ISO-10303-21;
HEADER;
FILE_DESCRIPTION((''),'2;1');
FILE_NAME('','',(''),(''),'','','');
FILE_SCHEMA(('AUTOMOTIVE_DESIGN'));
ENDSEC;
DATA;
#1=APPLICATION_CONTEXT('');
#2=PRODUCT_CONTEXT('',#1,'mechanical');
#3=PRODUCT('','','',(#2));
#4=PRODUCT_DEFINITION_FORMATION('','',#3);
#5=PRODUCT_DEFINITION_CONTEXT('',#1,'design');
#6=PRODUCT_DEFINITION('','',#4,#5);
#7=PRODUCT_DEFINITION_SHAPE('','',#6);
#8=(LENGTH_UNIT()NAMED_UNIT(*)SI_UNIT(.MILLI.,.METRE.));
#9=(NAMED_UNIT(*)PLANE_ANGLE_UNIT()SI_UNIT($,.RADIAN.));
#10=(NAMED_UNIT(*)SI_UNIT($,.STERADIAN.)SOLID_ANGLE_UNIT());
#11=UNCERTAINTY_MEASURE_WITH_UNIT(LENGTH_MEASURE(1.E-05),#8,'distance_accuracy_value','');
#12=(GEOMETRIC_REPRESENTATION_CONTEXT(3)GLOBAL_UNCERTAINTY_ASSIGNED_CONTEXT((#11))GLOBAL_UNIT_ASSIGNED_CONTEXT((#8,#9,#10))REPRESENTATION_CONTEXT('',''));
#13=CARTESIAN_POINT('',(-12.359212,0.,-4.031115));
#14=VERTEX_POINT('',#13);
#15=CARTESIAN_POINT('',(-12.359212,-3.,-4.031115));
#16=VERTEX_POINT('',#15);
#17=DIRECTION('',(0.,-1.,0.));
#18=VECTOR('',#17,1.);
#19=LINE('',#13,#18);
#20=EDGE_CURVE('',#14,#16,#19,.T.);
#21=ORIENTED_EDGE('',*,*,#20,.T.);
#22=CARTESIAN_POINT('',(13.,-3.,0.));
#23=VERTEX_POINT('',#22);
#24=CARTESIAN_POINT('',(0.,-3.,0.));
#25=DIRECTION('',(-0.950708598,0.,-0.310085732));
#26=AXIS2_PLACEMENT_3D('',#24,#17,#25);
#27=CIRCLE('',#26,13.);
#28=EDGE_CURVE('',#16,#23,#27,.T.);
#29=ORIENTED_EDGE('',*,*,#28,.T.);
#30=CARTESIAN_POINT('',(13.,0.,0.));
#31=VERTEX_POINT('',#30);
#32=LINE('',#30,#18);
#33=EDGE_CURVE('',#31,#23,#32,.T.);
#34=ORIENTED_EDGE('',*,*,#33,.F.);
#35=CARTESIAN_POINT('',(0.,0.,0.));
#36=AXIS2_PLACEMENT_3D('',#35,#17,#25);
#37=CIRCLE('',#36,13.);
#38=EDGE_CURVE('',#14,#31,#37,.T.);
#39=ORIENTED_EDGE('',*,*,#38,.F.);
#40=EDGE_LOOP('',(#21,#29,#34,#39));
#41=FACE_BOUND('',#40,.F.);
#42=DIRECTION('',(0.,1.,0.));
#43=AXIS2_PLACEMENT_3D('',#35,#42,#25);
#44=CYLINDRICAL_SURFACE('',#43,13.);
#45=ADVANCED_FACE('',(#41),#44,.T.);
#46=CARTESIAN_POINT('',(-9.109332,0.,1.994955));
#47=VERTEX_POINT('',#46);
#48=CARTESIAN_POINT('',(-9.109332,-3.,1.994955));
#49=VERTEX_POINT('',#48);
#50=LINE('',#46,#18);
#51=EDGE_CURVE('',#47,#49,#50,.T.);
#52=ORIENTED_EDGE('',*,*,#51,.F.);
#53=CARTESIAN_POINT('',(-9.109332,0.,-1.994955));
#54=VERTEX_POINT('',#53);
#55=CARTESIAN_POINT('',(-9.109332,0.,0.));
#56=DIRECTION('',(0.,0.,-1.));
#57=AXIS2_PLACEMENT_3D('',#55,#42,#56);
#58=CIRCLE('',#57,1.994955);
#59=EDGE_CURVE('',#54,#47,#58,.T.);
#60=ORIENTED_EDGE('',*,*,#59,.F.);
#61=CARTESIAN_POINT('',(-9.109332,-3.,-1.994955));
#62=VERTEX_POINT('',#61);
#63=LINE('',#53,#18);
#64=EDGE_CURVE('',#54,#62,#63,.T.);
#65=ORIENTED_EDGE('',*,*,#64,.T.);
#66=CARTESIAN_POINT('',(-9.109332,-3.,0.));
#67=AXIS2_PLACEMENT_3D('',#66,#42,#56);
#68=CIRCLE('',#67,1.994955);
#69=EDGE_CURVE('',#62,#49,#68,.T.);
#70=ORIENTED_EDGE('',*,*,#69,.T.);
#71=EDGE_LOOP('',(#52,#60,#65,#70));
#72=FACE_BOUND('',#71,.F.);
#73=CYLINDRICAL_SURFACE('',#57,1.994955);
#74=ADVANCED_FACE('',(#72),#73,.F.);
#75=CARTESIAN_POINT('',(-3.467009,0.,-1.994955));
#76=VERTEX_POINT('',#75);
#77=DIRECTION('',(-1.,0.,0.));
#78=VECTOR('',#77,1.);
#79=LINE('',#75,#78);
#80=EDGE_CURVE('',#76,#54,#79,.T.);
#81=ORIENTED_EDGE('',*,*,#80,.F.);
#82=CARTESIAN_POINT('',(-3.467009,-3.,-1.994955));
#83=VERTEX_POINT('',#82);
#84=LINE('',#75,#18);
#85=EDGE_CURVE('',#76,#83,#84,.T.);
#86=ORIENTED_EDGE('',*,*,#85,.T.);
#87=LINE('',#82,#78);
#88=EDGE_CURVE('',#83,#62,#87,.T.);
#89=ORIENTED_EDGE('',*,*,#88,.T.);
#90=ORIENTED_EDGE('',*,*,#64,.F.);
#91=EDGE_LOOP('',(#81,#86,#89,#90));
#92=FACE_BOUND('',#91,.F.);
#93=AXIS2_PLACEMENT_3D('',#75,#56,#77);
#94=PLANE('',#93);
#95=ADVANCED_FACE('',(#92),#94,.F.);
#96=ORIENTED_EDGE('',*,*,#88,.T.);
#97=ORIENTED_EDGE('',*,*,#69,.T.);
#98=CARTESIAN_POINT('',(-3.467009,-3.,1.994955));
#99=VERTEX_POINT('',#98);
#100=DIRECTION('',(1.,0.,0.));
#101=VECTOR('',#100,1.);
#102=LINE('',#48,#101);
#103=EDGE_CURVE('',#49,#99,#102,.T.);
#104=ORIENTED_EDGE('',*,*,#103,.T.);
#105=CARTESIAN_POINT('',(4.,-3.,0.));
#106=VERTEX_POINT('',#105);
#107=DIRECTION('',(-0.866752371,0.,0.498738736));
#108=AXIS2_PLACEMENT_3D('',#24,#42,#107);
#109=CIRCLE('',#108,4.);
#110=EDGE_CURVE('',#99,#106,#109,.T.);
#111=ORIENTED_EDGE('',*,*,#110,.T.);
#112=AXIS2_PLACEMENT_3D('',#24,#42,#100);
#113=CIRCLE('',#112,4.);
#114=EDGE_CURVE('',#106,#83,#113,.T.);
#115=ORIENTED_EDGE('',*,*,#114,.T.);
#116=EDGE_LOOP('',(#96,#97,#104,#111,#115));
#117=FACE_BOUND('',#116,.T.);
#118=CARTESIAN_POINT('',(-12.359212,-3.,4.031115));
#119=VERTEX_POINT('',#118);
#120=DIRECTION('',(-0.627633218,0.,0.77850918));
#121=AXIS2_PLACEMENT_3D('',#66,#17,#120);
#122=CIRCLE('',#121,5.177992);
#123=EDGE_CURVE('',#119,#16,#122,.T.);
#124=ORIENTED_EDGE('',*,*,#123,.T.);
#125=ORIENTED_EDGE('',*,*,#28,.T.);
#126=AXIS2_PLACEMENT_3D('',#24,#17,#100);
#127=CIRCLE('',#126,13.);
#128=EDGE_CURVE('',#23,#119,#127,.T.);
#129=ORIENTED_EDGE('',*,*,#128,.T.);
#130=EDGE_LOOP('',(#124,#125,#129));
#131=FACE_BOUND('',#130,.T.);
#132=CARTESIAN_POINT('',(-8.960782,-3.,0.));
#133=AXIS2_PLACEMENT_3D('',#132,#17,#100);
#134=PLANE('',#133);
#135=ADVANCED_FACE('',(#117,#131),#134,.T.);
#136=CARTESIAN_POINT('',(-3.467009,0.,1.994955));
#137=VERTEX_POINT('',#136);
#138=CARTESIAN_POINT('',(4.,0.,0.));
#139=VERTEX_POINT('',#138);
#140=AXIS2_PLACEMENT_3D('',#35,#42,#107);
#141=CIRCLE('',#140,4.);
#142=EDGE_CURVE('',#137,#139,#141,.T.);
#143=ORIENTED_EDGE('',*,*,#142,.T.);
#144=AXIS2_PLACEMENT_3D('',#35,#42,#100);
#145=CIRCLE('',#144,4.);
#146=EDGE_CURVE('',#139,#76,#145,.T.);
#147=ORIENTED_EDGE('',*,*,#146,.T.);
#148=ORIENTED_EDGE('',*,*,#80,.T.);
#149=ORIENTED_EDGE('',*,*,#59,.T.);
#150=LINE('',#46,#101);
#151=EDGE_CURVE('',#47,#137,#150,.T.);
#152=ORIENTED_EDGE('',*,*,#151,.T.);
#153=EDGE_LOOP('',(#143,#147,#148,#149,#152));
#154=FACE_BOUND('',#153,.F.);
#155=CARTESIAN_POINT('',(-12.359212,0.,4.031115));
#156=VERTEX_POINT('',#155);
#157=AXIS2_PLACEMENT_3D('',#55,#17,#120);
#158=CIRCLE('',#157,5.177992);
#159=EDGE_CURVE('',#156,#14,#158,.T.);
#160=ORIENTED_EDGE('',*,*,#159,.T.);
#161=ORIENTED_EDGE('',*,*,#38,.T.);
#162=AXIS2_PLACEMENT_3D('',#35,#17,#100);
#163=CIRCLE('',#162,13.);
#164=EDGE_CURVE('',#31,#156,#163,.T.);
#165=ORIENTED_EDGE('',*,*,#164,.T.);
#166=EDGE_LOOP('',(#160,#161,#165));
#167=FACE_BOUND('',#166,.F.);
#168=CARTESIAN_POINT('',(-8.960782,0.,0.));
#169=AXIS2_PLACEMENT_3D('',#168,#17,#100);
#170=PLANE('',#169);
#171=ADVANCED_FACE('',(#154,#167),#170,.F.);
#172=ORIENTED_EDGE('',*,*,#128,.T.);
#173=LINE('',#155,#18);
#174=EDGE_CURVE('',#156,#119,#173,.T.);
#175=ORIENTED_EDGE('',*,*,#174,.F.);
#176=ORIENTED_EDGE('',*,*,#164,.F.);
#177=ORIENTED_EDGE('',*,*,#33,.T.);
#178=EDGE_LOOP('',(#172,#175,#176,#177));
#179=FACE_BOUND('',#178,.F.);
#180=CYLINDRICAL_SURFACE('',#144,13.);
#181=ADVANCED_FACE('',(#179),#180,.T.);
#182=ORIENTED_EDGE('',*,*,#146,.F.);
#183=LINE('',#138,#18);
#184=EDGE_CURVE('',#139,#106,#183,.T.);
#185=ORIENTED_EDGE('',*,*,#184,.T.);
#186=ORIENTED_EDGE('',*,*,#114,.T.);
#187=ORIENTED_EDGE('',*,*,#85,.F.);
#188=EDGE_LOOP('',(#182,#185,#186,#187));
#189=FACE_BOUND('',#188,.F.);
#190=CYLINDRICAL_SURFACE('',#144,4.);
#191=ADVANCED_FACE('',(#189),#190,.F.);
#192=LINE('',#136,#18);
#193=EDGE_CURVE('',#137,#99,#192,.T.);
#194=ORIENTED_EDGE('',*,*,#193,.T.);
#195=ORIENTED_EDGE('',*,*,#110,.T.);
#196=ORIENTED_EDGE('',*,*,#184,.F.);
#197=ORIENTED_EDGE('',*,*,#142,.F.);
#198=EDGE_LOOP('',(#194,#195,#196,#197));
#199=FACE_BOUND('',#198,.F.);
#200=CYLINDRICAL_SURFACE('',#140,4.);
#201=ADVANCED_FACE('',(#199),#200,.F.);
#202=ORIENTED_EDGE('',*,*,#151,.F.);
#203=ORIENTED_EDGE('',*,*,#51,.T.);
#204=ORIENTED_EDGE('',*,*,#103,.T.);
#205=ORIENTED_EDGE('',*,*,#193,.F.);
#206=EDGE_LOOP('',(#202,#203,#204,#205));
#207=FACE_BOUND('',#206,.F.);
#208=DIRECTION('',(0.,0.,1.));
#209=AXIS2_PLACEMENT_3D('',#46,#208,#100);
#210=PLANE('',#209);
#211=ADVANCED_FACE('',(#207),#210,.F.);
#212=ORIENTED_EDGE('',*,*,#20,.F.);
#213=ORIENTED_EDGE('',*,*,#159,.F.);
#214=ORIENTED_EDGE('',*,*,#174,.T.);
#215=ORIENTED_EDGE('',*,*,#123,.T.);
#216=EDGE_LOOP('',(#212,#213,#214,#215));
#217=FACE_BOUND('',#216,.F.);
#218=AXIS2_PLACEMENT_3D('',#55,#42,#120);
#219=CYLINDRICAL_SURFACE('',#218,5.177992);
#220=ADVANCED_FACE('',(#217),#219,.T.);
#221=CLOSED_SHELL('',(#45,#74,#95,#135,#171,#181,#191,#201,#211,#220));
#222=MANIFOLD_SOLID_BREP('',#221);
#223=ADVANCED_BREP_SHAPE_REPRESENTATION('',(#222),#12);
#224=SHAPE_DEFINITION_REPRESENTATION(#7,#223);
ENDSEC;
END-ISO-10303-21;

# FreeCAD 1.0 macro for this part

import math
import FreeCAD as App
import Part
import Sketcher
from FreeCAD import Vector

doc = App.newDocument("Part")
body = doc.addObject("PartDesign::Body", "Body")

sketch1 = body.newObject("Sketcher::SketchObject", "Sketch")
sketch1.AttachmentSupport = (doc.getObject("XZ_Plane"), [""])
sketch1.MapMode = "FlatFace"
sketch1.addGeometry([
    Part.ArcOfCircle(Part.Circle(Vector(0, 0, 0), Vector(0, 0, 1), 13), math.radians(-162), math.radians(0)),
    Part.ArcOfCircle(Part.Circle(Vector(0, 0, 0), Vector(0, 0, 1), 13), math.radians(0), math.radians(162)),
    Part.ArcOfCircle(Part.Circle(Vector(-9.1, 0, 0), Vector(0, 0, 1), 5.2), math.radians(129), math.radians(231)),
    Part.LineSegment(Vector(-9.1, 2, 0), Vector(-3.5, 2, 0)),
    Part.ArcOfCircle(Part.Circle(Vector(0, 0, 0), Vector(0, 0, 1), 4), math.radians(0), math.radians(150)),
    Part.ArcOfCircle(Part.Circle(Vector(0, 0, 0), Vector(0, 0, 1), 4), math.radians(-150), math.radians(0)),
    Part.LineSegment(Vector(-3.5, -2, 0), Vector(-9.1, -2, 0)),
    Part.ArcOfCircle(Part.Circle(Vector(-9.1, 0, 0), Vector(0, 0, 1), 2), math.radians(90), math.radians(270)),
], False)
sketch1.addConstraint([
    Sketcher.Constraint("Tangent", 0, 2, 1, 1),
    Sketcher.Constraint("Coincident", 1, 2, 2, 1),
    Sketcher.Constraint("Coincident", 2, 2, 0, 1),
    Sketcher.Constraint("Coincident", 3, 2, 4, 2),
    Sketcher.Constraint("Tangent", 4, 1, 5, 2),
    Sketcher.Constraint("Coincident", 5, 1, 6, 1),
    Sketcher.Constraint("Tangent", 6, 2, 7, 2),
    Sketcher.Constraint("Tangent", 7, 1, 3, 1),
    Sketcher.Constraint("Horizontal", 3),
    Sketcher.Constraint("Horizontal", 6),
    Sketcher.Constraint("Coincident", 0, 3, -1, 1),
    Sketcher.Constraint("Coincident", 4, 3, -1, 1),
    Sketcher.Constraint("Coincident", 7, 3, 2, 3),
    Sketcher.Constraint("Equal", 0, 1),
    Sketcher.Constraint("Equal", 4, 5),
    Sketcher.Constraint("PointOnObject", 2, 3, -1),
    Sketcher.Constraint("PointOnObject", 0, 2, -1),
    Sketcher.Constraint("PointOnObject", 4, 1, -1),
    Sketcher.Constraint("Radius", 0, 13.0),
    Sketcher.Constraint("Radius", 4, 4.0),
    Sketcher.Constraint("Radius", 2, 5.177992),
    Sketcher.Constraint("Radius", 7, 1.994955),
    Sketcher.Constraint("DistanceX", 3, 1, 3, 2, 5.642322),
])
pad1 = body.newObject("PartDesign::Pad", "Pad")
pad1.Profile = sketch1
pad1.Length = 3

doc.recompute()
